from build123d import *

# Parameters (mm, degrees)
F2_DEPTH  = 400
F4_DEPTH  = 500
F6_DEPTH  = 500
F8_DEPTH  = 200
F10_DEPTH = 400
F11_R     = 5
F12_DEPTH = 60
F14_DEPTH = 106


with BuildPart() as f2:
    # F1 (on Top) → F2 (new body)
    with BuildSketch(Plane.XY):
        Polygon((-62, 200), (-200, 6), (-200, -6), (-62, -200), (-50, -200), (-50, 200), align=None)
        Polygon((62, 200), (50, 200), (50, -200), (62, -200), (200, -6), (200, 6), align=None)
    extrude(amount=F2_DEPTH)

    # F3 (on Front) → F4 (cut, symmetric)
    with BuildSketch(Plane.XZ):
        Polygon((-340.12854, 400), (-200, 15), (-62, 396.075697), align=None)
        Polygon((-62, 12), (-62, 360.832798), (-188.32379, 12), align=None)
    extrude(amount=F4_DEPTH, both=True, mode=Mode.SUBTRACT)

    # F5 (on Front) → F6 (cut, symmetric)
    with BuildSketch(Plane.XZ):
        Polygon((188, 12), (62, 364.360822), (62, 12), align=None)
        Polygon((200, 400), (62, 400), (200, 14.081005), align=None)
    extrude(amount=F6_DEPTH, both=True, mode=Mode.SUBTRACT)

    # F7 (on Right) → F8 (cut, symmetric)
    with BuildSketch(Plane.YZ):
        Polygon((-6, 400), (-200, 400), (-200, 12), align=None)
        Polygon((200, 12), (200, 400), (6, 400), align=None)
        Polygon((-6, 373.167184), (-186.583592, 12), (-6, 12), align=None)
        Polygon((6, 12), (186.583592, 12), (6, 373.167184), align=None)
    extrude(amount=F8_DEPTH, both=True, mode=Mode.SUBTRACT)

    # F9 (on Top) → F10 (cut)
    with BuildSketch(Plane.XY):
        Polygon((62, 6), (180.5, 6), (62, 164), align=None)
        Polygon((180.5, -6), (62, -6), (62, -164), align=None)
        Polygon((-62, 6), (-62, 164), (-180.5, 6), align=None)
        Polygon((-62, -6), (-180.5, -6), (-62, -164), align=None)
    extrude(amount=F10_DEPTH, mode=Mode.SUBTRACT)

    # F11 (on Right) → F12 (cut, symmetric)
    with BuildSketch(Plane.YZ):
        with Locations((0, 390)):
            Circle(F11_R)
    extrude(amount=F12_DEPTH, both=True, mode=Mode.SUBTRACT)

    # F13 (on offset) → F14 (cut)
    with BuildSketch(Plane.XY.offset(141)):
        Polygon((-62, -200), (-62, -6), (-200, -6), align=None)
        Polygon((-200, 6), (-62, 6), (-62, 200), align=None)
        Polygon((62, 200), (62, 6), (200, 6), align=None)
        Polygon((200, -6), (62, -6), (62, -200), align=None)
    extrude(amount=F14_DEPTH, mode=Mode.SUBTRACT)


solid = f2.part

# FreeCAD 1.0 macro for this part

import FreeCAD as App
import Part
import Sketcher

V = App.Vector
Q = App.Units.Quantity

doc = App.newDocument("Part")
body = doc.addObject("PartDesign::Body", "Body")
body.AllowCompound = True

sketch1 = body.newObject("Sketcher::SketchObject", "Sketch")
sketch1.AttachmentSupport = (doc.getObject("XY_Plane"), [""])
sketch1.MapMode = "FlatFace"
sketch1.addGeometry([
    Part.LineSegment(V(-62, 200, 0), V(-200, 6, 0)),
    Part.LineSegment(V(-200, 6, 0), V(-200, -6, 0)),
    Part.LineSegment(V(-200, -6, 0), V(-62, -200, 0)),
    Part.LineSegment(V(-62, -200, 0), V(-50, -200, 0)),
    Part.LineSegment(V(-50, -200, 0), V(-50, 200, 0)),
    Part.LineSegment(V(-50, 200, 0), V(-62, 200, 0)),
    Part.LineSegment(V(62, 200, 0), V(50, 200, 0)),
    Part.LineSegment(V(50, 200, 0), V(50, -200, 0)),
    Part.LineSegment(V(50, -200, 0), V(62, -200, 0)),
    Part.LineSegment(V(62, -200, 0), V(200, -6, 0)),
    Part.LineSegment(V(200, -6, 0), V(200, 6, 0)),
    Part.LineSegment(V(200, 6, 0), V(62, 200, 0)),
], False)
sketch1.addConstraint([
    Sketcher.Constraint("Coincident", 0, 2, 1, 1),
    Sketcher.Constraint("Coincident", 1, 2, 2, 1),
    Sketcher.Constraint("Coincident", 2, 2, 3, 1),
    Sketcher.Constraint("Coincident", 3, 2, 4, 1),
    Sketcher.Constraint("Coincident", 4, 2, 5, 1),
    Sketcher.Constraint("Coincident", 5, 2, 0, 1),
    Sketcher.Constraint("Coincident", 6, 2, 7, 1),
    Sketcher.Constraint("Coincident", 7, 2, 8, 1),
    Sketcher.Constraint("Coincident", 8, 2, 9, 1),
    Sketcher.Constraint("Coincident", 9, 2, 10, 1),
    Sketcher.Constraint("Coincident", 10, 2, 11, 1),
    Sketcher.Constraint("Coincident", 11, 2, 6, 1),
    Sketcher.Constraint("Vertical", 1),
    Sketcher.Constraint("Horizontal", 3),
    Sketcher.Constraint("Vertical", 4),
    Sketcher.Constraint("Horizontal", 5),
    Sketcher.Constraint("Horizontal", 6),
    Sketcher.Constraint("Vertical", 7),
    Sketcher.Constraint("Horizontal", 8),
    Sketcher.Constraint("Vertical", 10),
    Sketcher.Constraint("Symmetric", 3, 2, 6, 2, -1, 1),
    Sketcher.Constraint("Symmetric", 5, 2, 8, 2, -1, 1),
    Sketcher.Constraint("Symmetric", 0, 2, 9, 2, -1, 1),
    Sketcher.Constraint("Symmetric", 2, 2, 8, 2, -2),
    Sketcher.Constraint("Parallel", 2, 11),
    Sketcher.Constraint("Horizontal", 1, 2, 9, 2),
    Sketcher.Constraint("Horizontal", 0, 2, 10, 2),
    Sketcher.Constraint("Equal", 8, 1),
    Sketcher.Constraint("DistanceX", 3, 1, 3, 2, Q("12 mm")),
    Sketcher.Constraint("DistanceY", 4, 1, 4, 2, Q("400 mm")),
    Sketcher.Constraint("DistanceX", 0, 2, -1, 1, Q("200 mm")),
    Sketcher.Constraint("DistanceX", 2, 2, -1, 1, Q("62 mm")),
])
pad1 = body.newObject("PartDesign::Pad", "Pad")
pad1.Profile = sketch1
pad1.Length = 400

sketch2 = body.newObject("Sketcher::SketchObject", "Sketch001")
sketch2.AttachmentSupport = (doc.getObject("XZ_Plane"), [""])
sketch2.MapMode = "FlatFace"
sketch2.addGeometry([
    Part.LineSegment(V(-340, 400, 0), V(-200, 15, 0)),
    Part.LineSegment(V(-200, 15, 0), V(-62, 396, 0)),
    Part.LineSegment(V(-62, 396, 0), V(-340, 400, 0)),
    Part.LineSegment(V(-62, 12, 0), V(-62, 361, 0)),
    Part.LineSegment(V(-62, 361, 0), V(-188, 12, 0)),
    Part.LineSegment(V(-188, 12, 0), V(-62, 12, 0)),
], False)
sketch2.addConstraint([
    Sketcher.Constraint("Coincident", 0, 2, 1, 1),
    Sketcher.Constraint("Coincident", 1, 2, 2, 1),
    Sketcher.Constraint("Coincident", 2, 2, 0, 1),
    Sketcher.Constraint("Coincident", 3, 2, 4, 1),
    Sketcher.Constraint("Coincident", 4, 2, 5, 1),
    Sketcher.Constraint("Coincident", 5, 2, 3, 1),
    Sketcher.Constraint("Vertical", 3),
    Sketcher.Constraint("Horizontal", 5),
    Sketcher.Constraint("Parallel", 1, 4),
    Sketcher.Constraint("Vertical", 1, 2, 3, 2),
    Sketcher.Constraint("Angle", 0, Q("-70 deg")),
    Sketcher.Constraint("DistanceX", 0, 2, -1, 1, Q("200 mm")),
    Sketcher.Constraint("DistanceY", -1, 1, 0, 2, Q("15 mm")),
    Sketcher.Constraint("DistanceX", 1, 2, -1, 1, Q("62 mm")),
    Sketcher.Constraint("DistanceY", -1, 1, 2, 2, Q("400 mm")),
    Sketcher.Constraint("DistanceY", -1, 1, 4, 2, Q("12 mm")),
    Sketcher.Constraint("DistanceY", 3, 1, 3, 2, Q("348.832798 mm")),
    Sketcher.Constraint("DistanceX", 5, 1, 5, 2, Q("126.32379 mm")),
])
pocket1 = body.newObject("PartDesign::Pocket", "Pocket")
pocket1.Profile = sketch2
pocket1.Length = 1000
pocket1.Midplane = True

sketch3 = body.newObject("Sketcher::SketchObject", "Sketch002")
sketch3.AttachmentSupport = (doc.getObject("XZ_Plane"), [""])
sketch3.MapMode = "FlatFace"
sketch3.addGeometry([
    Part.LineSegment(V(188, 12, 0), V(62, 364, 0)),
    Part.LineSegment(V(62, 364, 0), V(62, 12, 0)),
    Part.LineSegment(V(62, 12, 0), V(188, 12, 0)),
    Part.LineSegment(V(200, 400, 0), V(62, 400, 0)),
    Part.LineSegment(V(62, 400, 0), V(200, 14, 0)),
    Part.LineSegment(V(200, 14, 0), V(200, 400, 0)),
], False)
sketch3.addConstraint([
    Sketcher.Constraint("Coincident", 0, 2, 1, 1),
    Sketcher.Constraint("Coincident", 1, 2, 2, 1),
    Sketcher.Constraint("Coincident", 2, 2, 0, 1),
    Sketcher.Constraint("Coincident", 3, 2, 4, 1),
    Sketcher.Constraint("Coincident", 4, 2, 5, 1),
    Sketcher.Constraint("Coincident", 5, 2, 3, 1),
    Sketcher.Constraint("Vertical", 1),
    Sketcher.Constraint("Horizontal", 2),
    Sketcher.Constraint("Horizontal", 3),
    Sketcher.Constraint("Vertical", 5),
    Sketcher.Constraint("Parallel", 0, 4),
    Sketcher.Constraint("Vertical", 1, 2, 3, 2),
    Sketcher.Constraint("DistanceX", 2, 1, 2, 2, Q("126 mm")),
    Sketcher.Constraint("DistanceX", 3, 2, 3, 1, Q("138 mm")),
    Sketcher.Constraint("DistanceX", -1, 1, 0, 2, Q("62 mm")),
    Sketcher.Constraint("DistanceY", -1, 1, 1, 2, Q("12 mm")),
    Sketcher.Constraint("DistanceY", -1, 1, 3, 2, Q("400 mm")),
    Sketcher.Constraint("DistanceY", 1, 2, 1, 1, Q("352.360822 mm")),
])
pocket2 = body.newObject("PartDesign::Pocket", "Pocket001")
pocket2.Profile = sketch3
pocket2.Length = 1000
pocket2.Midplane = True

sketch4 = body.newObject("Sketcher::SketchObject", "Sketch003")
sketch4.AttachmentSupport = (doc.getObject("YZ_Plane"), [""])
sketch4.MapMode = "FlatFace"
sketch4.addGeometry([
    Part.LineSegment(V(-6, 400, 0), V(-200, 400, 0)),
    Part.LineSegment(V(-200, 400, 0), V(-200, 12, 0)),
    Part.LineSegment(V(-200, 12, 0), V(-6, 400, 0)),
    Part.LineSegment(V(200, 12, 0), V(200, 400, 0)),
    Part.LineSegment(V(200, 400, 0), V(6, 400, 0)),
    Part.LineSegment(V(6, 400, 0), V(200, 12, 0)),
    Part.LineSegment(V(-6, 373, 0), V(-187, 12, 0)),
    Part.LineSegment(V(-187, 12, 0), V(-6, 12, 0)),
    Part.LineSegment(V(-6, 12, 0), V(-6, 373, 0)),
    Part.LineSegment(V(6, 12, 0), V(187, 12, 0)),
    Part.LineSegment(V(187, 12, 0), V(6, 373, 0)),
    Part.LineSegment(V(6, 373, 0), V(6, 12, 0)),
], False)
sketch4.addConstraint([
    Sketcher.Constraint("Coincident", 0, 2, 1, 1),
    Sketcher.Constraint("Coincident", 1, 2, 2, 1),
    Sketcher.Constraint("Coincident", 2, 2, 0, 1),
    Sketcher.Constraint("Coincident", 3, 2, 4, 1),
    Sketcher.Constraint("Coincident", 4, 2, 5, 1),
    Sketcher.Constraint("Coincident", 5, 2, 3, 1),
    Sketcher.Constraint("Coincident", 6, 2, 7, 1),
    Sketcher.Constraint("Coincident", 7, 2, 8, 1),
    Sketcher.Constraint("Coincident", 8, 2, 6, 1),
    Sketcher.Constraint("Coincident", 9, 2, 10, 1),
    Sketcher.Constraint("Coincident", 10, 2, 11, 1),
    Sketcher.Constraint("Coincident", 11, 2, 9, 1),
    Sketcher.Constraint("Horizontal", 0),
    Sketcher.Constraint("Vertical", 1),
    Sketcher.Constraint("Vertical", 3),
    Sketcher.Constraint("Horizontal", 4),
    Sketcher.Constraint("Horizontal", 7),
    Sketcher.Constraint("Vertical", 8),
    Sketcher.Constraint("Horizontal", 9),
    Sketcher.Constraint("Vertical", 11),
    Sketcher.Constraint("Symmetric", 0, 2, 3, 2, -2),
    Sketcher.Constraint("Symmetric", 6, 2, 9, 2, -2),
    Sketcher.Constraint("Symmetric", 8, 2, 10, 2, -2),
    Sketcher.Constraint("Parallel", 2, 6),
    Sketcher.Constraint("Parallel", 5, 10),
    Sketcher.Constraint("Horizontal", 1, 2, 5, 2),
    Sketcher.Constraint("Horizontal", 5, 2, 6, 2),
    Sketcher.Constraint("Vertical", 2, 2, 7, 2),
    Sketcher.Constraint("DistanceX", 0, 2, 0, 1, Q("194 mm")),
    Sketcher.Constraint("DistanceY", 1, 2, 1, 1, Q("388 mm")),
    Sketcher.Constraint("DistanceX", 0, 2, -1, 1, Q("200 mm")),
    Sketcher.Constraint("DistanceY", -1, 1, 0, 2, Q("400 mm")),
    Sketcher.Constraint("DistanceX", 7, 1, 7, 2, Q("180.583592 mm")),
])
pocket3 = body.newObject("PartDesign::Pocket", "Pocket002")
pocket3.Profile = sketch4
pocket3.Length = 400
pocket3.Midplane = True

sketch5 = body.newObject("Sketcher::SketchObject", "Sketch004")
sketch5.AttachmentSupport = (doc.getObject("XY_Plane"), [""])
sketch5.MapMode = "FlatFace"
sketch5.addGeometry([
    Part.LineSegment(V(62, 6, 0), V(180, 6, 0)),
    Part.LineSegment(V(180, 6, 0), V(62, 164, 0)),
    Part.LineSegment(V(62, 164, 0), V(62, 6, 0)),
    Part.LineSegment(V(180, -6, 0), V(62, -6, 0)),
    Part.LineSegment(V(62, -6, 0), V(62, -164, 0)),
    Part.LineSegment(V(62, -164, 0), V(180, -6, 0)),
    Part.LineSegment(V(-62, 6, 0), V(-62, 164, 0)),
    Part.LineSegment(V(-62, 164, 0), V(-180, 6, 0)),
    Part.LineSegment(V(-180, 6, 0), V(-62, 6, 0)),
    Part.LineSegment(V(-62, -6, 0), V(-180, -6, 0)),
    Part.LineSegment(V(-180, -6, 0), V(-62, -164, 0)),
    Part.LineSegment(V(-62, -164, 0), V(-62, -6, 0)),
], False)
sketch5.addConstraint([
    Sketcher.Constraint("Coincident", 0, 2, 1, 1),
    Sketcher.Constraint("Coincident", 1, 2, 2, 1),
    Sketcher.Constraint("Coincident", 2, 2, 0, 1),
    Sketcher.Constraint("Coincident", 3, 2, 4, 1),
    Sketcher.Constraint("Coincident", 4, 2, 5, 1),
    Sketcher.Constraint("Coincident", 5, 2, 3, 1),
    Sketcher.Constraint("Coincident", 6, 2, 7, 1),
    Sketcher.Constraint("Coincident", 7, 2, 8, 1),
    Sketcher.Constraint("Coincident", 8, 2, 6, 1),
    Sketcher.Constraint("Coincident", 9, 2, 10, 1),
    Sketcher.Constraint("Coincident", 10, 2, 11, 1),
    Sketcher.Constraint("Coincident", 11, 2, 9, 1),
    Sketcher.Constraint("Horizontal", 0),
    Sketcher.Constraint("Vertical", 2),
    Sketcher.Constraint("Horizontal", 3),
    Sketcher.Constraint("Vertical", 4),
    Sketcher.Constraint("Vertical", 6),
    Sketcher.Constraint("Horizontal", 8),
    Sketcher.Constraint("Horizontal", 9),
    Sketcher.Constraint("Vertical", 11),
    Sketcher.Constraint("Symmetric", 4, 2, 6, 2, -1, 1),
    Sketcher.Constraint("Symmetric", 5, 2, 7, 2, -1, 1),
    Sketcher.Constraint("Symmetric", 0, 2, 9, 2, -1, 1),
    Sketcher.Constraint("Symmetric", 1, 2, 10, 2, -1, 1),
    Sketcher.Constraint("Symmetric", 1, 2, 6, 2, -2),
    Sketcher.Constraint("Symmetric", 0, 2, 7, 2, -2),
    Sketcher.Constraint("DistanceY", 2, 2, 2, 1, Q("158 mm")),
    Sketcher.Constraint("DistanceX", 0, 1, 0, 2, Q("118.5 mm")),
    Sketcher.Constraint("DistanceY", -1, 1, 0, 2, Q("6 mm")),
    Sketcher.Constraint("DistanceX", -1, 1, 1, 2, Q("62 mm")),
])
pocket4 = body.newObject("PartDesign::Pocket", "Pocket003")
pocket4.Profile = sketch5
pocket4.Length = 400
pocket4.Reversed = True

sketch6 = body.newObject("Sketcher::SketchObject", "Sketch005")
sketch6.AttachmentSupport = (doc.getObject("YZ_Plane"), [""])
sketch6.MapMode = "FlatFace"
sketch6.addGeometry(Part.Circle(V(0, 390, 0), V(0, 0, 1), 5), False)
sketch6.addConstraint([
    Sketcher.Constraint("PointOnObject", 0, 3, -2),
    Sketcher.Constraint("Diameter", 0, Q("10 mm")),
    Sketcher.Constraint("DistanceY", -1, 1, 0, 3, Q("390 mm")),
])
pocket5 = body.newObject("PartDesign::Pocket", "Pocket004")
pocket5.Profile = sketch6
pocket5.Length = 120
pocket5.Midplane = True

sketch7 = body.newObject("Sketcher::SketchObject", "Sketch006")
sketch7.AttachmentSupport = (doc.getObject("XY_Plane"), [""])
sketch7.MapMode = "FlatFace"
sketch7.AttachmentOffset = App.Placement(V(0, 0, 141), App.Rotation())
sketch7.addGeometry([
    Part.LineSegment(V(-62, -200, 0), V(-62, -6, 0)),
    Part.LineSegment(V(-62, -6, 0), V(-200, -6, 0)),
    Part.LineSegment(V(-200, -6, 0), V(-62, -200, 0)),
    Part.LineSegment(V(-200, 6, 0), V(-62, 6, 0)),
    Part.LineSegment(V(-62, 6, 0), V(-62, 200, 0)),
    Part.LineSegment(V(-62, 200, 0), V(-200, 6, 0)),
    Part.LineSegment(V(62, 200, 0), V(62, 6, 0)),
    Part.LineSegment(V(62, 6, 0), V(200, 6, 0)),
    Part.LineSegment(V(200, 6, 0), V(62, 200, 0)),
    Part.LineSegment(V(200, -6, 0), V(62, -6, 0)),
    Part.LineSegment(V(62, -6, 0), V(62, -200, 0)),
    Part.LineSegment(V(62, -200, 0), V(200, -6, 0)),
], False)
sketch7.addConstraint([
    Sketcher.Constraint("Coincident", 0, 2, 1, 1),
    Sketcher.Constraint("Coincident", 1, 2, 2, 1),
    Sketcher.Constraint("Coincident", 2, 2, 0, 1),
    Sketcher.Constraint("Coincident", 3, 2, 4, 1),
    Sketcher.Constraint("Coincident", 4, 2, 5, 1),
    Sketcher.Constraint("Coincident", 5, 2, 3, 1),
    Sketcher.Constraint("Coincident", 6, 2, 7, 1),
    Sketcher.Constraint("Coincident", 7, 2, 8, 1),
    Sketcher.Constraint("Coincident", 8, 2, 6, 1),
    Sketcher.Constraint("Coincident", 9, 2, 10, 1),
    Sketcher.Constraint("Coincident", 10, 2, 11, 1),
    Sketcher.Constraint("Coincident", 11, 2, 9, 1),
    Sketcher.Constraint("Vertical", 0),
    Sketcher.Constraint("Horizontal", 1),
    Sketcher.Constraint("Horizontal", 3),
    Sketcher.Constraint("Vertical", 4),
    Sketcher.Constraint("Vertical", 6),
    Sketcher.Constraint("Horizontal", 7),
    Sketcher.Constraint("Horizontal", 9),
    Sketcher.Constraint("Vertical", 10),
    Sketcher.Constraint("Symmetric", 0, 2, 6, 2, -1, 1),
    Sketcher.Constraint("Symmetric", 3, 2, 9, 2, -1, 1),
    Sketcher.Constraint("Symmetric", 3, 2, 6, 2, -2),
    Sketcher.Constraint("Parallel", 2, 8),
    Sketcher.Constraint("Parallel", 5, 11),
    Sketcher.Constraint("Horizontal", 4, 2, 8, 2),
    Sketcher.Constraint("Horizontal", 2, 2, 10, 2),
    Sketcher.Constraint("Vertical", 1, 2, 5, 2),
    Sketcher.Constraint("Vertical", 7, 2, 11, 2),
    Sketcher.Constraint("DistanceX", 1, 2, 1, 1, Q("138 mm")),
    Sketcher.Constraint("DistanceY", 0, 1, 0, 2, Q("194 mm")),
    Sketcher.Constraint("DistanceX", 0, 2, -1, 1, Q("62 mm")),
    Sketcher.Constraint("DistanceY", 0, 2, -1, 1, Q("6 mm")),
])
pocket6 = body.newObject("PartDesign::Pocket", "Pocket005")
pocket6.Profile = sketch7
pocket6.Length = 106
pocket6.Reversed = True

doc.recompute()
